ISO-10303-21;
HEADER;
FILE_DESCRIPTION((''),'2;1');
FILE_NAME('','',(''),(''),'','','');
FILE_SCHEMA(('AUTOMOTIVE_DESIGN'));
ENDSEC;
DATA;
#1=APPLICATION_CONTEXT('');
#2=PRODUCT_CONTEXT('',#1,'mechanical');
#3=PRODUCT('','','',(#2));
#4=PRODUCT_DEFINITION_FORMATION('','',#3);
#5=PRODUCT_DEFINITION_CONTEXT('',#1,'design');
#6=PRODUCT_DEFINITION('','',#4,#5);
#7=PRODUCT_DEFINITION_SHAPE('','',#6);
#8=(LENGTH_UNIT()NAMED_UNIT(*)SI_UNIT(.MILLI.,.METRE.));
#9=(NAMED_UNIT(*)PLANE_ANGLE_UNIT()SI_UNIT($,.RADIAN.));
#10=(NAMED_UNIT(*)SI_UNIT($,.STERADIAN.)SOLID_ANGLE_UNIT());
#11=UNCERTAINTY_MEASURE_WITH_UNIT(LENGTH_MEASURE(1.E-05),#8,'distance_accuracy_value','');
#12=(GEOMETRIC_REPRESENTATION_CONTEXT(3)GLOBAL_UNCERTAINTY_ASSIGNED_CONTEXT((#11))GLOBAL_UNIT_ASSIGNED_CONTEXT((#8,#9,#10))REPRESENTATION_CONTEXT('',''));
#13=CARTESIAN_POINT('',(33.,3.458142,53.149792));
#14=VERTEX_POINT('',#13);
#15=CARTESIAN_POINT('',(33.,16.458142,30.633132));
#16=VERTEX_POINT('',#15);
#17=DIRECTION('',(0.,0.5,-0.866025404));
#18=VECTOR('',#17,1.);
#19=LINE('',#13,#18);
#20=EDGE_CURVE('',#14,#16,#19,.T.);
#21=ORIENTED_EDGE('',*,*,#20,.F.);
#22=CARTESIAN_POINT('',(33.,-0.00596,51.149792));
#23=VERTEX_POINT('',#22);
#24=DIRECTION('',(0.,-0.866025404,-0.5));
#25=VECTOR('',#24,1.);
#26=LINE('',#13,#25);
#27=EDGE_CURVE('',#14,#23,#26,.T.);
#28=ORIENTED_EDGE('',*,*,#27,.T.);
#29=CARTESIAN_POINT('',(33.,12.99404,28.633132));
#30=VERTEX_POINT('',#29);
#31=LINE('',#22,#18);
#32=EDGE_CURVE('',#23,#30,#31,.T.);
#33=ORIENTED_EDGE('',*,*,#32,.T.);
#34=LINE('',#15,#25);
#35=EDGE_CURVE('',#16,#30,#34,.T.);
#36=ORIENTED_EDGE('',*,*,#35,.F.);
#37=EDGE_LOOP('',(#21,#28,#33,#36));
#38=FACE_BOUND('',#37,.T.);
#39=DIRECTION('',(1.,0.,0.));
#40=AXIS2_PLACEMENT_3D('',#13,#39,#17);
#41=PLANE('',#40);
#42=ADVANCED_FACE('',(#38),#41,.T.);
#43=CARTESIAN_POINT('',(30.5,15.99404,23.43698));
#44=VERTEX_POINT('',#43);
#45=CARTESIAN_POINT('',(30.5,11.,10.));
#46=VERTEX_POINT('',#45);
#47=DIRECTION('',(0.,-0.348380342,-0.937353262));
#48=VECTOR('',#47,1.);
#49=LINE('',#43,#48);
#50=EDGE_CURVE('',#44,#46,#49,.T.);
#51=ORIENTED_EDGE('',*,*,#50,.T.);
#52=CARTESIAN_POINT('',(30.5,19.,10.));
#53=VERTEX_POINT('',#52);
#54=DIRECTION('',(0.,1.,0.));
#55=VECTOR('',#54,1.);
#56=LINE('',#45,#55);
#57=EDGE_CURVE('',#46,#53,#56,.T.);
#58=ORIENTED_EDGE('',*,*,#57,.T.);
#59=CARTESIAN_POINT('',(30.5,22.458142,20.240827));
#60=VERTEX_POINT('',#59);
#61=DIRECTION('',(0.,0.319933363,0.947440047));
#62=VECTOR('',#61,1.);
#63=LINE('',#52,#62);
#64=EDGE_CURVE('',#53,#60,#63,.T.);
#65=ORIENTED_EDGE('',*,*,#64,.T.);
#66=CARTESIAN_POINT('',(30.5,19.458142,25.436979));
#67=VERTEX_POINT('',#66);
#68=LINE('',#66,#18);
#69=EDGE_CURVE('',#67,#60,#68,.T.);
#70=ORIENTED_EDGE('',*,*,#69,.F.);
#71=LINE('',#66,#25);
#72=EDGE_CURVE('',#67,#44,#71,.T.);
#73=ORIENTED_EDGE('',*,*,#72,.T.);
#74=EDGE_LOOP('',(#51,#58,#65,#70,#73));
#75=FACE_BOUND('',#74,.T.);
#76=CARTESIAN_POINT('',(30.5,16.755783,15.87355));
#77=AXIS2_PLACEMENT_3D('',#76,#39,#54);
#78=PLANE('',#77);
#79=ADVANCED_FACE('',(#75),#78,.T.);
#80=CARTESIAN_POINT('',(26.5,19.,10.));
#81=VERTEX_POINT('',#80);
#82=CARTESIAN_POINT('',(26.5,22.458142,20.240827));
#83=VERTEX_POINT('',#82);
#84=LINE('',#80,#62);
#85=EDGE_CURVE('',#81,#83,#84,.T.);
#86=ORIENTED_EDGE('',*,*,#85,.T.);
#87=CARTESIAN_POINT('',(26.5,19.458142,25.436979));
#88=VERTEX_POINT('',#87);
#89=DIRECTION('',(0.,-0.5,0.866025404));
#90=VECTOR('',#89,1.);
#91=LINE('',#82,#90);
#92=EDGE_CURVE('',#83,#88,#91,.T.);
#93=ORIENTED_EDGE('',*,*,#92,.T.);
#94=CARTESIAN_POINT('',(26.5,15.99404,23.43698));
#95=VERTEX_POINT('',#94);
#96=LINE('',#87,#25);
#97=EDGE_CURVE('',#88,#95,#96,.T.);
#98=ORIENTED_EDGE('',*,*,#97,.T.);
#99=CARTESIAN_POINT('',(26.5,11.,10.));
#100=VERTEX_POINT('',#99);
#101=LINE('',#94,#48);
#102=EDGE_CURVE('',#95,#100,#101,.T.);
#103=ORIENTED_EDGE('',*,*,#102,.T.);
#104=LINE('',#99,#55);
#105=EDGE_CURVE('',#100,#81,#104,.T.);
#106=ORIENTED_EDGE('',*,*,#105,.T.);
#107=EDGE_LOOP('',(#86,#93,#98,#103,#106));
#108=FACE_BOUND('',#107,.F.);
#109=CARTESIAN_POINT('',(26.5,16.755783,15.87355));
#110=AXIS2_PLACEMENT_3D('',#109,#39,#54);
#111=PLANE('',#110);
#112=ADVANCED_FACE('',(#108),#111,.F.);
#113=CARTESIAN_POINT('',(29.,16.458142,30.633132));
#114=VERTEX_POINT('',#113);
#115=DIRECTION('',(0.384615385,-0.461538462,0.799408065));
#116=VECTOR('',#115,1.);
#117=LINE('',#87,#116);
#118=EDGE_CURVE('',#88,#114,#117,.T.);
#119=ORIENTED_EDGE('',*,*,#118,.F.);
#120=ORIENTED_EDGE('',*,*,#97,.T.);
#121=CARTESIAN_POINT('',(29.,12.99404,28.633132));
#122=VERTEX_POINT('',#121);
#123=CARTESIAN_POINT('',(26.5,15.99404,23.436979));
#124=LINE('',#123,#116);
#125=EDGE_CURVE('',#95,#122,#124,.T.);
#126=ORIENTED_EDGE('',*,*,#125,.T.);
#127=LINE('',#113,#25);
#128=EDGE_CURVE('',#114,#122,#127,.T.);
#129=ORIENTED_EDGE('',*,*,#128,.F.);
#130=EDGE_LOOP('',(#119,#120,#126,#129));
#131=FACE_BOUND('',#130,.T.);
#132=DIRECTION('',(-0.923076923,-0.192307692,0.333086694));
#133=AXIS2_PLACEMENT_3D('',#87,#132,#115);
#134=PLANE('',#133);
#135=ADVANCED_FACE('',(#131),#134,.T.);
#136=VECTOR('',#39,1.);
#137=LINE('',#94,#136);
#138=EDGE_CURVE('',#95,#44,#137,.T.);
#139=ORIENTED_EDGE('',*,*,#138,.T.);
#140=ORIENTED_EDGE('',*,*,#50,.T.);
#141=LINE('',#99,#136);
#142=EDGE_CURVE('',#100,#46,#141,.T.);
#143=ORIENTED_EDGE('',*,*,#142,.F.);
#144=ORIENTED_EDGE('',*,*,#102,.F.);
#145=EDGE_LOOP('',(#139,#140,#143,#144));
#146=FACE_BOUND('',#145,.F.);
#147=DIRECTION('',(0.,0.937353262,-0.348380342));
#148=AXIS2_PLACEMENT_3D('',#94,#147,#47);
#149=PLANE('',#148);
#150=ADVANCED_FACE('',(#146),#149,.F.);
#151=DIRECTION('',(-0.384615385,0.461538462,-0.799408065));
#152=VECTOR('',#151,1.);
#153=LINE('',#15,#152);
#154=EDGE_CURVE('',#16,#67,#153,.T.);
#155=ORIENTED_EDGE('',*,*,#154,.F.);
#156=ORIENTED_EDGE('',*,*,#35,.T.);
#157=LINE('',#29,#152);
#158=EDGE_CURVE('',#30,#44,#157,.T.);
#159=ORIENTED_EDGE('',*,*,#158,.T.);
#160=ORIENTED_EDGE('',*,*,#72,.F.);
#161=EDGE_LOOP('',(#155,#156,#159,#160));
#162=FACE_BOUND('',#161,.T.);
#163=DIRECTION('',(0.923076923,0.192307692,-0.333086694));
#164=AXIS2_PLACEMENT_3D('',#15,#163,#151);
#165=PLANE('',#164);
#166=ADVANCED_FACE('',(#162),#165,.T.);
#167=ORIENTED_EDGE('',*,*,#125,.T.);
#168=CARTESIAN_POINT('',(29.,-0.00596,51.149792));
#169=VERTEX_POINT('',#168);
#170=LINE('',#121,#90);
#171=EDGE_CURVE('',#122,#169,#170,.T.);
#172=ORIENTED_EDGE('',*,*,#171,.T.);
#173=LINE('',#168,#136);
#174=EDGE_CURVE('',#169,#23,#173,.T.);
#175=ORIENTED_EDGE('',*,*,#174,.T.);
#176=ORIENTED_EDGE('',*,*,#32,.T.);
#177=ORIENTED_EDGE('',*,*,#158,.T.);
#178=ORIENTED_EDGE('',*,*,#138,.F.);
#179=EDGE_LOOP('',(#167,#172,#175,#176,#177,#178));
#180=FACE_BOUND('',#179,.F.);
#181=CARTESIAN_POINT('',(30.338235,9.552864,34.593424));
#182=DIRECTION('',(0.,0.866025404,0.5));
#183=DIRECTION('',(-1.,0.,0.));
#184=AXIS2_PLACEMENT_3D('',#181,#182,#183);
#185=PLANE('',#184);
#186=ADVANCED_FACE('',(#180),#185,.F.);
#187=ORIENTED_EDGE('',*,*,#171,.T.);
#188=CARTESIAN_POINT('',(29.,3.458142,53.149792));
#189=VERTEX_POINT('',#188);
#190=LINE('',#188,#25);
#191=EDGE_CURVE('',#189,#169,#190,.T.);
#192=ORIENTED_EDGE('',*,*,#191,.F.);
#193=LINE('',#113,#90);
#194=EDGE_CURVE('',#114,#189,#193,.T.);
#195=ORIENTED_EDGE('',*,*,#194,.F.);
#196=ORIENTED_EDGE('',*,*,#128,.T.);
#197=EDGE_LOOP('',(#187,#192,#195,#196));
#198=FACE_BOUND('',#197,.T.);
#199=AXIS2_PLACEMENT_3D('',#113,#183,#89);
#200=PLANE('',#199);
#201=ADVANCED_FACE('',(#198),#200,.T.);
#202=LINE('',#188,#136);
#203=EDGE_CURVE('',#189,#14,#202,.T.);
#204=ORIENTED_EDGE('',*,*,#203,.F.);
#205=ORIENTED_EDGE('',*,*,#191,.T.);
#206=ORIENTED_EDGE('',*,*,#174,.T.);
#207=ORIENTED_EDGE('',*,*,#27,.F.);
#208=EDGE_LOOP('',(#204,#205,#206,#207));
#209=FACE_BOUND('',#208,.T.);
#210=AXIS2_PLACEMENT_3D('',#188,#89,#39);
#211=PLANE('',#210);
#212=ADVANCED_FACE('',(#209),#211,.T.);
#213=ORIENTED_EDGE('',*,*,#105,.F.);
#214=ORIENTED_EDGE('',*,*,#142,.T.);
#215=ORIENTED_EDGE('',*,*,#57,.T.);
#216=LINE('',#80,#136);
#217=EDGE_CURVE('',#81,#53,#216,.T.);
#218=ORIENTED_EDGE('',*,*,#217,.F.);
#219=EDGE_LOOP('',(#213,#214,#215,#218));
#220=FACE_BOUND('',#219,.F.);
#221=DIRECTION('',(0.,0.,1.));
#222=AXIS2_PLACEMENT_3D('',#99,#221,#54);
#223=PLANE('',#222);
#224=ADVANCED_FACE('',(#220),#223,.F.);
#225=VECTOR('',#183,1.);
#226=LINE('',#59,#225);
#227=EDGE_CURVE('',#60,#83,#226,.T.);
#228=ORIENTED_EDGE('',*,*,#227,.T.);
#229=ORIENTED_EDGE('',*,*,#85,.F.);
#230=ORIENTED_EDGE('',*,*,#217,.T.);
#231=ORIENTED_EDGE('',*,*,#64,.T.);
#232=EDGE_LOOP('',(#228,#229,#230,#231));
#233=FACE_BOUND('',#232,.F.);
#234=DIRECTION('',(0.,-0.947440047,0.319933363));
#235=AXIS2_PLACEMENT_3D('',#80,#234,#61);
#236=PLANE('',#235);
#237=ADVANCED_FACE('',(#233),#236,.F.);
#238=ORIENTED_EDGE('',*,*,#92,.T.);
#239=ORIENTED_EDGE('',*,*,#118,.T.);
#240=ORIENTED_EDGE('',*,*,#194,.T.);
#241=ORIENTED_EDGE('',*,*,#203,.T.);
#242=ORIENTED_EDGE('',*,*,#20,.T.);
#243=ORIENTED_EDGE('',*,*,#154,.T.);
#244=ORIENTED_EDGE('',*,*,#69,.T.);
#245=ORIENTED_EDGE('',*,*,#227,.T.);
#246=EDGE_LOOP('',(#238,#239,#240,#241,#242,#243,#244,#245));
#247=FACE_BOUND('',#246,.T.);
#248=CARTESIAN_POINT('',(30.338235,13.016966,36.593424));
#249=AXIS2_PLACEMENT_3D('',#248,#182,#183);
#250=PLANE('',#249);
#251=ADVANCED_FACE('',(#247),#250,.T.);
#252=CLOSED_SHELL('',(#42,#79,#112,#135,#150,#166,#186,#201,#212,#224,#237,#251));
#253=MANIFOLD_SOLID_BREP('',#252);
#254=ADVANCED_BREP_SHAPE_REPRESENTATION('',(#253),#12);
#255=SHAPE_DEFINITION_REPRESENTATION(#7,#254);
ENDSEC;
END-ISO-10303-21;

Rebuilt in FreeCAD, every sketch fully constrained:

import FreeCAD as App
import Part
import Sketcher
Q = App.Units.Quantity

doc = App.newDocument("Part")
params = doc.addObject("Spreadsheet::Sheet", "Params")
for row, (alias, value) in enumerate([
    ("sketch1_width", "8 mm"),
    ("pad1_length", "4 mm"),
    ("sketch2_width", "4 mm"),
    ("sketch2_height", "26 mm"),
    ("sketch2_height2", "6 mm"),
    ("sketch2_length", "6.5 mm"),
    ("pad2_length", "4 mm"),
], start=1):
    params.set(f"A{row}", alias)
    params.set(f"B{row}", "=" + value)
    params.setAlias(f"B{row}", alias)

body = doc.addObject("PartDesign::Body", "Body")

sketch1 = body.newObject("Sketcher::SketchObject", "Sketch")
sketch1.AttachmentSupport = (doc.getObject("YZ_Plane"), [""])
sketch1.MapMode = "FlatFace"
sketch1.AttachmentOffset = App.Placement(App.Vector(0, 0, 26.5), App.Rotation())
sketch1.addGeometry(Part.LineSegment(App.Vector(11, 10, 0), App.Vector(16, 23, 0)), False)
sketch1.addGeometry(Part.LineSegment(App.Vector(16, 23, 0), App.Vector(22, 20, 0)), False)
sketch1.addGeometry(Part.LineSegment(App.Vector(22, 20, 0), App.Vector(19, 10, 0)), False)
sketch1.addGeometry(Part.LineSegment(App.Vector(19, 10, 0), App.Vector(11, 10, 0)), False)
sketch1.addConstraint(Sketcher.Constraint("Coincident", 0, 2, 1, 1))
sketch1.addConstraint(Sketcher.Constraint("Coincident", 1, 2, 2, 1))
sketch1.addConstraint(Sketcher.Constraint("Coincident", 2, 2, 3, 1))
sketch1.addConstraint(Sketcher.Constraint("Coincident", 3, 2, 0, 1))
sketch1.addConstraint(Sketcher.Constraint("Horizontal", 3))
sketch1.addConstraint(Sketcher.Constraint("DistanceX", 3, 2, 3, 1, Q("8 mm")))
sketch1.addConstraint(Sketcher.Constraint("DistanceX", -1, 1, 2, 2, Q("19 mm")))
sketch1.addConstraint(Sketcher.Constraint("DistanceY", -1, 1, 2, 2, Q("10 mm")))
sketch1.addConstraint(Sketcher.Constraint("DistanceX", 0, 2, 1, 2, Q("6.464102 mm")))
sketch1.addConstraint(Sketcher.Constraint("DistanceX", -1, 1, 0, 2, Q("15.99404 mm")))
sketch1.addConstraint(Sketcher.Constraint("DistanceY", -1, 1, 0, 2, Q("23.43698 mm")))
sketch1.addConstraint(Sketcher.Constraint("Distance", 1, Q("7.211103 mm")))
sketch1.setExpression("Constraints[5]", "Params.sketch1_width")
pad1 = body.newObject("PartDesign::Pad", "Pad")
pad1.Profile = sketch1
pad1.setExpression("Length", "Params.pad1_length")
body2 = doc.addObject("PartDesign::Body", "Body001")

sketch2 = body2.newObject("Sketcher::SketchObject", "Sketch001")
sketch2.AttachmentSupport = (doc.getObject("XY_Plane001"), [""])
sketch2.MapMode = "FlatFace"
sketch2.addGeometry(Part.LineSegment(App.Vector(33, 44.3, 0), App.Vector(29, 44.3, 0)), False)
sketch2.addGeometry(Part.LineSegment(App.Vector(29, 44.3, 0), App.Vector(29, 18.3, 0)), False)
sketch2.addGeometry(Part.LineSegment(App.Vector(29, 18.3, 0), App.Vector(26.5, 12.3, 0)), False)
sketch2.addGeometry(Part.LineSegment(App.Vector(26.5, 12.3, 0), App.Vector(26.5, 6.3, 0)), False)
sketch2.addGeometry(Part.LineSegment(App.Vector(26.5, 6.3, 0), App.Vector(30.5, 6.3, 0)), False)
sketch2.addGeometry(Part.LineSegment(App.Vector(30.5, 6.3, 0), App.Vector(30.5, 12.3, 0)), False)
sketch2.addGeometry(Part.LineSegment(App.Vector(30.5, 12.3, 0), App.Vector(33, 18.3, 0)), False)
sketch2.addGeometry(Part.LineSegment(App.Vector(33, 18.3, 0), App.Vector(33, 44.3, 0)), False)
sketch2.addConstraint(Sketcher.Constraint("Coincident", 0, 2, 1, 1))
sketch2.addConstraint(Sketcher.Constraint("Coincident", 1, 2, 2, 1))
sketch2.addConstraint(Sketcher.Constraint("Coincident", 2, 2, 3, 1))
sketch2.addConstraint(Sketcher.Constraint("Coincident", 3, 2, 4, 1))
sketch2.addConstraint(Sketcher.Constraint("Coincident", 4, 2, 5, 1))
sketch2.addConstraint(Sketcher.Constraint("Coincident", 5, 2, 6, 1))
sketch2.addConstraint(Sketcher.Constraint("Coincident", 6, 2, 7, 1))
sketch2.addConstraint(Sketcher.Constraint("Coincident", 7, 2, 0, 1))
sketch2.addConstraint(Sketcher.Constraint("Horizontal", 0))
sketch2.addConstraint(Sketcher.Constraint("Vertical", 1))
sketch2.addConstraint(Sketcher.Constraint("Vertical", 3))
sketch2.addConstraint(Sketcher.Constraint("Horizontal", 4))
sketch2.addConstraint(Sketcher.Constraint("Vertical", 5))
sketch2.addConstraint(Sketcher.Constraint("Vertical", 7))
sketch2.addConstraint(Sketcher.Constraint("Parallel", 2, 6))
sketch2.addConstraint(Sketcher.Constraint("Horizontal", 2, 2, 5, 2))
sketch2.addConstraint(Sketcher.Constraint("Horizontal", 1, 2, 6, 2))
sketch2.addConstraint(Sketcher.Constraint("DistanceX", 0, 2, 0, 1, Q("4 mm")))
sketch2.addConstraint(Sketcher.Constraint("DistanceY", 1, 2, 1, 1, Q("26 mm")))
sketch2.addConstraint(Sketcher.Constraint("DistanceY", 3, 2, 3, 1, Q("6 mm")))
sketch2.addConstraint(Sketcher.Constraint("DistanceX", -1, 1, 0, 2, Q("29 mm")))
sketch2.addConstraint(Sketcher.Constraint("DistanceY", 2, 2, 1, 2, Q("6 mm")))
sketch2.addConstraint(Sketcher.Constraint("Distance", 2, Q("6.5 mm")))
sketch2.addConstraint(Sketcher.Constraint("DistanceY", -1, 1, 0, 2, Q("44.3 mm")))
sketch2.setExpression("Constraints[17]", "Params.sketch2_width")
sketch2.setExpression("Constraints[18]", "Params.sketch2_height")
sketch2.setExpression("Constraints[19]", "Params.sketch2_height2")
sketch2.setExpression("Constraints[22]", "Params.sketch2_length")
pad2 = body2.newObject("PartDesign::Pad", "Pad001")
pad2.Profile = sketch2
pad2.setExpression("Length", "Params.pad2_length")
body3 = doc.addObject("PartDesign::Body", "Body002")
doc.recompute()

body2.Placement = App.Placement(App.Vector(0, 25.608142, 14.784867), App.Rotation(App.Vector(1, 0, 0), 120))
boolean = body3.newObject("PartDesign::Boolean", "Boolean")
boolean.Type = "Fuse"
boolean.addObjects([body2])
doc.recompute()

boolean2 = body3.newObject("PartDesign::Boolean", "Boolean001")
boolean2.Type = "Fuse"
boolean2.addObjects([body])

doc.recompute()
